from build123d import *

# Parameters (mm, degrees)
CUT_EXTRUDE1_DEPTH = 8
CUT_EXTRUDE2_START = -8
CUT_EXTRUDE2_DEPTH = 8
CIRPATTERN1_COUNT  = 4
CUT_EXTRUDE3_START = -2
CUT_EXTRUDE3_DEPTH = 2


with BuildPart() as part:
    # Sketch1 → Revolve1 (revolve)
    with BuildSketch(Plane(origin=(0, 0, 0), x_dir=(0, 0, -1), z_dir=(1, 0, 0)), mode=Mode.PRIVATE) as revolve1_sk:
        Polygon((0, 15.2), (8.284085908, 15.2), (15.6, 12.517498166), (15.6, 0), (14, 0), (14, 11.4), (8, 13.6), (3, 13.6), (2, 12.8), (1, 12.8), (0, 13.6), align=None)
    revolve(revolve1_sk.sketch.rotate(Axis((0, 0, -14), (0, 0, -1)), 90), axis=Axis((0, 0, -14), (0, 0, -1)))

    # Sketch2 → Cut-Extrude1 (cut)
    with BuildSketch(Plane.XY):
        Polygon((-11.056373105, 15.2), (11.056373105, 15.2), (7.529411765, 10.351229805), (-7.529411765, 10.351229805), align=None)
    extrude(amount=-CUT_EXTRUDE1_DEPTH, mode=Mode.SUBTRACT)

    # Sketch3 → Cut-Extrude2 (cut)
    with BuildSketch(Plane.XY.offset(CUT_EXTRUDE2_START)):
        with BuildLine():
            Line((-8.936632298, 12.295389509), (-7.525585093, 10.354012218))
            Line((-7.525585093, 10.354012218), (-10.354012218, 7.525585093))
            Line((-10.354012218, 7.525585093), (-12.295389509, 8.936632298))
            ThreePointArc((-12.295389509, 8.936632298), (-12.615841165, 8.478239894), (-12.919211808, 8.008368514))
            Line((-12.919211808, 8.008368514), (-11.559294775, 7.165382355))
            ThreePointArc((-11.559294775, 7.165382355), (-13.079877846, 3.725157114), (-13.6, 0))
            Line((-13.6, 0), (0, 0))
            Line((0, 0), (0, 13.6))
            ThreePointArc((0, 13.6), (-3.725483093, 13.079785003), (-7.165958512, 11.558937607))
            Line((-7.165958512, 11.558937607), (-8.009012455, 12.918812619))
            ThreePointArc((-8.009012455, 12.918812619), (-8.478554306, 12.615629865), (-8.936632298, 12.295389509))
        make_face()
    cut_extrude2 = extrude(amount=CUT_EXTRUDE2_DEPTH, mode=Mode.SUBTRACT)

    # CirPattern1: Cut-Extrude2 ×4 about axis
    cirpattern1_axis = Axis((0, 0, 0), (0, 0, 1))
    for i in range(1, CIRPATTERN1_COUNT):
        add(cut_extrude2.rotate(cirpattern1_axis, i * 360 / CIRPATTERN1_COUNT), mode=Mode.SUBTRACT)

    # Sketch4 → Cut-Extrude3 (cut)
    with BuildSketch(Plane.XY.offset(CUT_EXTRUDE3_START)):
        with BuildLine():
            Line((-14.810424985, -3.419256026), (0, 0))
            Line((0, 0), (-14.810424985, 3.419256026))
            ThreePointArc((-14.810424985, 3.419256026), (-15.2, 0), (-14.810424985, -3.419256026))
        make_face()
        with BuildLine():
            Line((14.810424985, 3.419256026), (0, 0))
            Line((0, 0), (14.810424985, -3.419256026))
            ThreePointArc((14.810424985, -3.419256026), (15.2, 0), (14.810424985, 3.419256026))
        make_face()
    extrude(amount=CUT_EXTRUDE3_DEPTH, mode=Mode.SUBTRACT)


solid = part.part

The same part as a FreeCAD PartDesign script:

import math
import FreeCAD as App
import Part
import Sketcher
Q = App.Units.Quantity


def add_polygon(sketch, points):
    """Adds a closed chain of lines whose ends are joined by coincident constraints."""
    first, n = sketch.GeometryCount, len(points)
    for a, b in zip(points, points[1:] + points[:1]):
        sketch.addGeometry(Part.LineSegment(App.Vector(*a, 0), App.Vector(*b, 0)), False)
    for i in range(n):
        sketch.addConstraint(Sketcher.Constraint("Coincident", first + i, 2, first + (i + 1) % n, 1))

doc = App.newDocument("Part")
params = doc.addObject("Spreadsheet::Sheet", "Params")
for row, (alias, value) in enumerate([
    ("sketch1_height", "1 mm"),
    ("sketch1_height2", "5 mm"),
    ("sketch1_width", "1.6 mm"),
    ("sketch1_width2", "11.4 mm"),
    ("revolution_angle", "360 deg"),
    ("pocket1_length", "8 mm"),
    ("sketch3_radius", "15.2 mm"),
    ("sketch3_radius2", "13.6 mm"),
    ("sketch3_length", "4 mm"),
    ("sketch3_length2", "2.4 mm"),
    ("pocket2_length", "8 mm"),
    ("sketch4_radius", "15.2 mm"),
    ("pocket3_length", "2 mm"),
], start=1):
    params.set(f"A{row}", alias)
    params.set(f"B{row}", "=" + value)
    params.setAlias(f"B{row}", alias)

body = doc.addObject("PartDesign::Body", "Body")

sketch1 = doc.addObject("Sketcher::SketchObject", "Sketch")
body.addObject(sketch1)
sketch1.AttachmentSupport = (doc.YZ_Plane, [""])
sketch1.MapMode = "FlatFace"
add_polygon(sketch1, [(15.2, -8.3), (15.2, 0), (13.6, 0), (12.8, -1), (12.8, -2), (13.6, -3), (13.6, -8), (11.4, -14), (0, -14), (0, -15.6), (12.5, -15.6)])
sketch1.addConstraint([
    Sketcher.Constraint("Vertical", 0),
    Sketcher.Constraint("Horizontal", 1),
    Sketcher.Constraint("Vertical", 3),
    Sketcher.Constraint("Vertical", 5),
    Sketcher.Constraint("Horizontal", 7),
    Sketcher.Constraint("Vertical", 8),
    Sketcher.Constraint("Horizontal", 9),
    Sketcher.Constraint("PointOnObject", 0, 2, -1),
    Sketcher.Constraint("PointOnObject", 7, 2, -2),
    Sketcher.Constraint("Parallel", 6, 10),
    Sketcher.Constraint("Vertical", 1, 2, 4, 2),
    Sketcher.Constraint("Equal", 1, 8),
    Sketcher.Constraint("Equal", 2, 4),
    Sketcher.Constraint("DistanceY", 3, 2, 3, 1, Q("1 mm")),
    Sketcher.Constraint("DistanceY", 5, 2, 5, 1, Q("5 mm")),
    Sketcher.Constraint("DistanceX", 1, 2, 1, 1, Q("1.6 mm")),
    Sketcher.Constraint("DistanceX", 7, 2, 7, 1, Q("11.4 mm")),
    Sketcher.Constraint("DistanceY", 2, 2, -1, 1, Q("1 mm")),
    Sketcher.Constraint("DistanceY", 6, 2, -1, 1, Q("14 mm")),
    Sketcher.Constraint("DistanceX", -1, 1, 0, 2, Q("15.2 mm")),
    Sketcher.Constraint("DistanceX", -1, 1, 2, 2, Q("12.8 mm")),
    Sketcher.Constraint("DistanceX", 9, 1, 9, 2, Q("12.517498 mm")),
])
sketch1.setExpression("Constraints[24]", "Params.sketch1_height")
sketch1.setExpression("Constraints[25]", "Params.sketch1_height2")
sketch1.setExpression("Constraints[26]", "Params.sketch1_width")
sketch1.setExpression("Constraints[27]", "Params.sketch1_width2")
revolution = doc.addObject("PartDesign::Revolution", "Revolution")
body.addObject(revolution)
revolution.Profile = sketch1
revolution.ReferenceAxis = (sketch1, ["V_Axis"])
revolution.setExpression("Angle", "Params.revolution_angle")

sketch2 = doc.addObject("Sketcher::SketchObject", "Sketch001")
body.addObject(sketch2)
sketch2.AttachmentSupport = (doc.XY_Plane, [""])
sketch2.MapMode = "FlatFace"
add_polygon(sketch2, [(11, 15), (-11, 15), (-8, 10), (8, 10)])
sketch2.addConstraint([
    Sketcher.Constraint("Horizontal", 0),
    Sketcher.Constraint("Horizontal", 2),
    Sketcher.Constraint("Equal", 1, 3),
    Sketcher.Constraint("DistanceY", -1, 1, 0, 2, Q("15.2 mm")),
    Sketcher.Constraint("DistanceX", 0, 2, 0, 1, Q("22.112746 mm")),
    Sketcher.Constraint("DistanceX", 2, 1, 2, 2, Q("15.058824 mm")),
    Sketcher.Constraint("DistanceX", 1, 2, -1, 1, Q("7.529412 mm")),
    Sketcher.Constraint("DistanceY", -1, 1, 1, 2, Q("10.35123 mm")),
])
pocket1 = doc.addObject("PartDesign::Pocket", "Pocket")
body.addObject(pocket1)
pocket1.Profile = sketch2
pocket1.setExpression("Length", "Params.pocket1_length")

sketch3 = doc.addObject("Sketcher::SketchObject", "Sketch002")
body.addObject(sketch3)
sketch3.AttachmentSupport = (doc.XY_Plane, [""])
sketch3.MapMode = "FlatFace"
sketch3.AttachmentOffset = App.Placement(App.Vector(0, 0, -8), App.Rotation())
sketch3.addGeometry([
    Part.LineSegment(App.Vector(-8.9, 12.3, 0), App.Vector(-7.5, 10.4, 0)),
    Part.LineSegment(App.Vector(-7.5, 10.4, 0), App.Vector(-10.4, 7.5, 0)),
    Part.LineSegment(App.Vector(-10.4, 7.5, 0), App.Vector(-12.3, 8.9, 0)),
    Part.ArcOfCircle(Part.Circle(App.Vector(0, 0, 0), App.Vector(0, 0, 1), 15.2), math.radians(143.99), math.radians(148.21)),
    Part.LineSegment(App.Vector(-12.9, 8, 0), App.Vector(-11.6, 7.2, 0)),
    Part.ArcOfCircle(Part.Circle(App.Vector(0, 0, 0), App.Vector(0, 0, 1), 13.6), math.radians(148), math.radians(180)),
    Part.LineSegment(App.Vector(-13.6, 0, 0), App.Vector(0, 0, 0)),
    Part.LineSegment(App.Vector(0, 0, 0), App.Vector(0, 13.6, 0)),
    Part.ArcOfCircle(Part.Circle(App.Vector(0, 0, 0), App.Vector(0, 0, 1), 13.6), math.radians(90), math.radians(122)),
    Part.LineSegment(App.Vector(-7.2, 11.6, 0), App.Vector(-8, 12.9, 0)),
    Part.ArcOfCircle(Part.Circle(App.Vector(0, 0, 0), App.Vector(0, 0, 1), 15.2), math.radians(121.8), math.radians(126.01)),
], False)
sketch3.addConstraint([
    Sketcher.Constraint("Coincident", 0, 2, 1, 1),
    Sketcher.Constraint("Coincident", 1, 2, 2, 1),
    Sketcher.Constraint("Coincident", 2, 2, 3, 1),
    Sketcher.Constraint("Coincident", 3, 2, 4, 1),
    Sketcher.Constraint("Coincident", 4, 2, 5, 1),
    Sketcher.Constraint("Coincident", 5, 2, 6, 1),
    Sketcher.Constraint("Coincident", 6, 2, 7, 1),
    Sketcher.Constraint("Coincident", 7, 2, 8, 1),
    Sketcher.Constraint("Coincident", 8, 2, 9, 1),
    Sketcher.Constraint("Coincident", 9, 2, 10, 1),
    Sketcher.Constraint("Coincident", 10, 2, 0, 1),
    Sketcher.Constraint("Horizontal", 6),
    Sketcher.Constraint("Vertical", 7),
    Sketcher.Constraint("Coincident", 3, 3, -1, 1),
    Sketcher.Constraint("Coincident", 5, 3, -1, 1),
    Sketcher.Constraint("Coincident", 8, 3, -1, 1),
    Sketcher.Constraint("Coincident", 10, 3, -1, 1),
    Sketcher.Constraint("Coincident", 6, 2, -1, 1),
    Sketcher.Constraint("Equal", 5, 8),
    Sketcher.Constraint("Equal", 3, 10),
    Sketcher.Constraint("Equal", 0, 2),
    Sketcher.Constraint("Radius", 3, Q("15.2 mm")),
    Sketcher.Constraint("Radius", 5, Q("13.6 mm")),
    Sketcher.Constraint("Angle", 1, Q("-135 deg")),
    Sketcher.Constraint("Distance", 1, Q("4 mm")),
    Sketcher.Constraint("Distance", 0, Q("2.4 mm")),
    Sketcher.Constraint("DistanceX", 1, 2, 9, 2, Q("2.345 mm")),
    Sketcher.Constraint("DistanceX", 3, 2, 1, 2, Q("2.5652 mm")),
    Sketcher.Constraint("DistanceX", 2, 2, -1, 1, Q("12.29539 mm")),
    Sketcher.Constraint("DistanceX", 8, 2, -1, 1, Q("7.165959 mm")),
    Sketcher.Constraint("DistanceY", -1, 1, 10, 2, Q("12.29539 mm")),
    Sketcher.Constraint("DistanceY", 4, 2, 2, 2, Q("1.77125 mm")),
])
sketch3.setExpression("Constraints[21]", "Params.sketch3_radius")
sketch3.setExpression("Constraints[22]", "Params.sketch3_radius2")
sketch3.setExpression("Constraints[24]", "Params.sketch3_length")
sketch3.setExpression("Constraints[25]", "Params.sketch3_length2")
pocket2 = doc.addObject("PartDesign::Pocket", "Pocket001")
body.addObject(pocket2)
pocket2.Profile = sketch3
pocket2.setExpression("Length", "Params.pocket2_length")
pocket2.Reversed = True
doc.recompute()

polarpattern = doc.addObject("PartDesign::PolarPattern", "PolarPattern")
body.addObject(polarpattern)
polarpattern.Originals = [pocket2]
polarpattern.Axis = (doc.Z_Axis, [""])
polarpattern.Angle = 360
polarpattern.Occurrences = 4
body.Tip = polarpattern

sketch4 = doc.addObject("Sketcher::SketchObject", "Sketch003")
body.addObject(sketch4)
sketch4.AttachmentSupport = (doc.XY_Plane, [""])
sketch4.MapMode = "FlatFace"
sketch4.AttachmentOffset = App.Placement(App.Vector(0, 0, -2), App.Rotation())
sketch4.addGeometry([
    Part.LineSegment(App.Vector(-15, -3, 0), App.Vector(0, 0, 0)),
    Part.LineSegment(App.Vector(0, 0, 0), App.Vector(-15, 3, 0)),
    Part.ArcOfCircle(Part.Circle(App.Vector(0, 0, 0), App.Vector(0, 0, 1), 15), math.radians(167), math.radians(193)),
    Part.LineSegment(App.Vector(15, 3, 0), App.Vector(0, 0, 0)),
    Part.LineSegment(App.Vector(0, 0, 0), App.Vector(15, -3, 0)),
    Part.ArcOfCircle(Part.Circle(App.Vector(0, 0, 0), App.Vector(0, 0, 1), 15), math.radians(-13), math.radians(13)),
], False)
sketch4.addConstraint([
    Sketcher.Constraint("Coincident", 0, 2, 1, 1),
    Sketcher.Constraint("Coincident", 1, 2, 2, 1),
    Sketcher.Constraint("Coincident", 2, 2, 0, 1),
    Sketcher.Constraint("Coincident", 3, 2, 4, 1),
    Sketcher.Constraint("Coincident", 4, 2, 5, 1),
    Sketcher.Constraint("Coincident", 5, 2, 3, 1),
    Sketcher.Constraint("Coincident", 2, 3, -1, 1),
    Sketcher.Constraint("Coincident", 5, 3, -1, 1),
    Sketcher.Constraint("Coincident", 0, 2, -1, 1),
    Sketcher.Constraint("Coincident", 3, 2, -1, 1),
    Sketcher.Constraint("Equal", 2, 5),
    Sketcher.Constraint("Parallel", 0, 3),
    Sketcher.Constraint("Parallel", 1, 4),
    Sketcher.Constraint("Horizontal", 2, 2, 4, 2),
    Sketcher.Constraint("Radius", 2, Q("15.2 mm")),
    Sketcher.Constraint("Angle", 0, Q("13 deg")),
])
sketch4.setExpression("Constraints[14]", "Params.sketch4_radius")
pocket3 = doc.addObject("PartDesign::Pocket", "Pocket002")
body.addObject(pocket3)
pocket3.Profile = sketch4
pocket3.setExpression("Length", "Params.pocket3_length")
pocket3.Reversed = True

doc.recompute()
